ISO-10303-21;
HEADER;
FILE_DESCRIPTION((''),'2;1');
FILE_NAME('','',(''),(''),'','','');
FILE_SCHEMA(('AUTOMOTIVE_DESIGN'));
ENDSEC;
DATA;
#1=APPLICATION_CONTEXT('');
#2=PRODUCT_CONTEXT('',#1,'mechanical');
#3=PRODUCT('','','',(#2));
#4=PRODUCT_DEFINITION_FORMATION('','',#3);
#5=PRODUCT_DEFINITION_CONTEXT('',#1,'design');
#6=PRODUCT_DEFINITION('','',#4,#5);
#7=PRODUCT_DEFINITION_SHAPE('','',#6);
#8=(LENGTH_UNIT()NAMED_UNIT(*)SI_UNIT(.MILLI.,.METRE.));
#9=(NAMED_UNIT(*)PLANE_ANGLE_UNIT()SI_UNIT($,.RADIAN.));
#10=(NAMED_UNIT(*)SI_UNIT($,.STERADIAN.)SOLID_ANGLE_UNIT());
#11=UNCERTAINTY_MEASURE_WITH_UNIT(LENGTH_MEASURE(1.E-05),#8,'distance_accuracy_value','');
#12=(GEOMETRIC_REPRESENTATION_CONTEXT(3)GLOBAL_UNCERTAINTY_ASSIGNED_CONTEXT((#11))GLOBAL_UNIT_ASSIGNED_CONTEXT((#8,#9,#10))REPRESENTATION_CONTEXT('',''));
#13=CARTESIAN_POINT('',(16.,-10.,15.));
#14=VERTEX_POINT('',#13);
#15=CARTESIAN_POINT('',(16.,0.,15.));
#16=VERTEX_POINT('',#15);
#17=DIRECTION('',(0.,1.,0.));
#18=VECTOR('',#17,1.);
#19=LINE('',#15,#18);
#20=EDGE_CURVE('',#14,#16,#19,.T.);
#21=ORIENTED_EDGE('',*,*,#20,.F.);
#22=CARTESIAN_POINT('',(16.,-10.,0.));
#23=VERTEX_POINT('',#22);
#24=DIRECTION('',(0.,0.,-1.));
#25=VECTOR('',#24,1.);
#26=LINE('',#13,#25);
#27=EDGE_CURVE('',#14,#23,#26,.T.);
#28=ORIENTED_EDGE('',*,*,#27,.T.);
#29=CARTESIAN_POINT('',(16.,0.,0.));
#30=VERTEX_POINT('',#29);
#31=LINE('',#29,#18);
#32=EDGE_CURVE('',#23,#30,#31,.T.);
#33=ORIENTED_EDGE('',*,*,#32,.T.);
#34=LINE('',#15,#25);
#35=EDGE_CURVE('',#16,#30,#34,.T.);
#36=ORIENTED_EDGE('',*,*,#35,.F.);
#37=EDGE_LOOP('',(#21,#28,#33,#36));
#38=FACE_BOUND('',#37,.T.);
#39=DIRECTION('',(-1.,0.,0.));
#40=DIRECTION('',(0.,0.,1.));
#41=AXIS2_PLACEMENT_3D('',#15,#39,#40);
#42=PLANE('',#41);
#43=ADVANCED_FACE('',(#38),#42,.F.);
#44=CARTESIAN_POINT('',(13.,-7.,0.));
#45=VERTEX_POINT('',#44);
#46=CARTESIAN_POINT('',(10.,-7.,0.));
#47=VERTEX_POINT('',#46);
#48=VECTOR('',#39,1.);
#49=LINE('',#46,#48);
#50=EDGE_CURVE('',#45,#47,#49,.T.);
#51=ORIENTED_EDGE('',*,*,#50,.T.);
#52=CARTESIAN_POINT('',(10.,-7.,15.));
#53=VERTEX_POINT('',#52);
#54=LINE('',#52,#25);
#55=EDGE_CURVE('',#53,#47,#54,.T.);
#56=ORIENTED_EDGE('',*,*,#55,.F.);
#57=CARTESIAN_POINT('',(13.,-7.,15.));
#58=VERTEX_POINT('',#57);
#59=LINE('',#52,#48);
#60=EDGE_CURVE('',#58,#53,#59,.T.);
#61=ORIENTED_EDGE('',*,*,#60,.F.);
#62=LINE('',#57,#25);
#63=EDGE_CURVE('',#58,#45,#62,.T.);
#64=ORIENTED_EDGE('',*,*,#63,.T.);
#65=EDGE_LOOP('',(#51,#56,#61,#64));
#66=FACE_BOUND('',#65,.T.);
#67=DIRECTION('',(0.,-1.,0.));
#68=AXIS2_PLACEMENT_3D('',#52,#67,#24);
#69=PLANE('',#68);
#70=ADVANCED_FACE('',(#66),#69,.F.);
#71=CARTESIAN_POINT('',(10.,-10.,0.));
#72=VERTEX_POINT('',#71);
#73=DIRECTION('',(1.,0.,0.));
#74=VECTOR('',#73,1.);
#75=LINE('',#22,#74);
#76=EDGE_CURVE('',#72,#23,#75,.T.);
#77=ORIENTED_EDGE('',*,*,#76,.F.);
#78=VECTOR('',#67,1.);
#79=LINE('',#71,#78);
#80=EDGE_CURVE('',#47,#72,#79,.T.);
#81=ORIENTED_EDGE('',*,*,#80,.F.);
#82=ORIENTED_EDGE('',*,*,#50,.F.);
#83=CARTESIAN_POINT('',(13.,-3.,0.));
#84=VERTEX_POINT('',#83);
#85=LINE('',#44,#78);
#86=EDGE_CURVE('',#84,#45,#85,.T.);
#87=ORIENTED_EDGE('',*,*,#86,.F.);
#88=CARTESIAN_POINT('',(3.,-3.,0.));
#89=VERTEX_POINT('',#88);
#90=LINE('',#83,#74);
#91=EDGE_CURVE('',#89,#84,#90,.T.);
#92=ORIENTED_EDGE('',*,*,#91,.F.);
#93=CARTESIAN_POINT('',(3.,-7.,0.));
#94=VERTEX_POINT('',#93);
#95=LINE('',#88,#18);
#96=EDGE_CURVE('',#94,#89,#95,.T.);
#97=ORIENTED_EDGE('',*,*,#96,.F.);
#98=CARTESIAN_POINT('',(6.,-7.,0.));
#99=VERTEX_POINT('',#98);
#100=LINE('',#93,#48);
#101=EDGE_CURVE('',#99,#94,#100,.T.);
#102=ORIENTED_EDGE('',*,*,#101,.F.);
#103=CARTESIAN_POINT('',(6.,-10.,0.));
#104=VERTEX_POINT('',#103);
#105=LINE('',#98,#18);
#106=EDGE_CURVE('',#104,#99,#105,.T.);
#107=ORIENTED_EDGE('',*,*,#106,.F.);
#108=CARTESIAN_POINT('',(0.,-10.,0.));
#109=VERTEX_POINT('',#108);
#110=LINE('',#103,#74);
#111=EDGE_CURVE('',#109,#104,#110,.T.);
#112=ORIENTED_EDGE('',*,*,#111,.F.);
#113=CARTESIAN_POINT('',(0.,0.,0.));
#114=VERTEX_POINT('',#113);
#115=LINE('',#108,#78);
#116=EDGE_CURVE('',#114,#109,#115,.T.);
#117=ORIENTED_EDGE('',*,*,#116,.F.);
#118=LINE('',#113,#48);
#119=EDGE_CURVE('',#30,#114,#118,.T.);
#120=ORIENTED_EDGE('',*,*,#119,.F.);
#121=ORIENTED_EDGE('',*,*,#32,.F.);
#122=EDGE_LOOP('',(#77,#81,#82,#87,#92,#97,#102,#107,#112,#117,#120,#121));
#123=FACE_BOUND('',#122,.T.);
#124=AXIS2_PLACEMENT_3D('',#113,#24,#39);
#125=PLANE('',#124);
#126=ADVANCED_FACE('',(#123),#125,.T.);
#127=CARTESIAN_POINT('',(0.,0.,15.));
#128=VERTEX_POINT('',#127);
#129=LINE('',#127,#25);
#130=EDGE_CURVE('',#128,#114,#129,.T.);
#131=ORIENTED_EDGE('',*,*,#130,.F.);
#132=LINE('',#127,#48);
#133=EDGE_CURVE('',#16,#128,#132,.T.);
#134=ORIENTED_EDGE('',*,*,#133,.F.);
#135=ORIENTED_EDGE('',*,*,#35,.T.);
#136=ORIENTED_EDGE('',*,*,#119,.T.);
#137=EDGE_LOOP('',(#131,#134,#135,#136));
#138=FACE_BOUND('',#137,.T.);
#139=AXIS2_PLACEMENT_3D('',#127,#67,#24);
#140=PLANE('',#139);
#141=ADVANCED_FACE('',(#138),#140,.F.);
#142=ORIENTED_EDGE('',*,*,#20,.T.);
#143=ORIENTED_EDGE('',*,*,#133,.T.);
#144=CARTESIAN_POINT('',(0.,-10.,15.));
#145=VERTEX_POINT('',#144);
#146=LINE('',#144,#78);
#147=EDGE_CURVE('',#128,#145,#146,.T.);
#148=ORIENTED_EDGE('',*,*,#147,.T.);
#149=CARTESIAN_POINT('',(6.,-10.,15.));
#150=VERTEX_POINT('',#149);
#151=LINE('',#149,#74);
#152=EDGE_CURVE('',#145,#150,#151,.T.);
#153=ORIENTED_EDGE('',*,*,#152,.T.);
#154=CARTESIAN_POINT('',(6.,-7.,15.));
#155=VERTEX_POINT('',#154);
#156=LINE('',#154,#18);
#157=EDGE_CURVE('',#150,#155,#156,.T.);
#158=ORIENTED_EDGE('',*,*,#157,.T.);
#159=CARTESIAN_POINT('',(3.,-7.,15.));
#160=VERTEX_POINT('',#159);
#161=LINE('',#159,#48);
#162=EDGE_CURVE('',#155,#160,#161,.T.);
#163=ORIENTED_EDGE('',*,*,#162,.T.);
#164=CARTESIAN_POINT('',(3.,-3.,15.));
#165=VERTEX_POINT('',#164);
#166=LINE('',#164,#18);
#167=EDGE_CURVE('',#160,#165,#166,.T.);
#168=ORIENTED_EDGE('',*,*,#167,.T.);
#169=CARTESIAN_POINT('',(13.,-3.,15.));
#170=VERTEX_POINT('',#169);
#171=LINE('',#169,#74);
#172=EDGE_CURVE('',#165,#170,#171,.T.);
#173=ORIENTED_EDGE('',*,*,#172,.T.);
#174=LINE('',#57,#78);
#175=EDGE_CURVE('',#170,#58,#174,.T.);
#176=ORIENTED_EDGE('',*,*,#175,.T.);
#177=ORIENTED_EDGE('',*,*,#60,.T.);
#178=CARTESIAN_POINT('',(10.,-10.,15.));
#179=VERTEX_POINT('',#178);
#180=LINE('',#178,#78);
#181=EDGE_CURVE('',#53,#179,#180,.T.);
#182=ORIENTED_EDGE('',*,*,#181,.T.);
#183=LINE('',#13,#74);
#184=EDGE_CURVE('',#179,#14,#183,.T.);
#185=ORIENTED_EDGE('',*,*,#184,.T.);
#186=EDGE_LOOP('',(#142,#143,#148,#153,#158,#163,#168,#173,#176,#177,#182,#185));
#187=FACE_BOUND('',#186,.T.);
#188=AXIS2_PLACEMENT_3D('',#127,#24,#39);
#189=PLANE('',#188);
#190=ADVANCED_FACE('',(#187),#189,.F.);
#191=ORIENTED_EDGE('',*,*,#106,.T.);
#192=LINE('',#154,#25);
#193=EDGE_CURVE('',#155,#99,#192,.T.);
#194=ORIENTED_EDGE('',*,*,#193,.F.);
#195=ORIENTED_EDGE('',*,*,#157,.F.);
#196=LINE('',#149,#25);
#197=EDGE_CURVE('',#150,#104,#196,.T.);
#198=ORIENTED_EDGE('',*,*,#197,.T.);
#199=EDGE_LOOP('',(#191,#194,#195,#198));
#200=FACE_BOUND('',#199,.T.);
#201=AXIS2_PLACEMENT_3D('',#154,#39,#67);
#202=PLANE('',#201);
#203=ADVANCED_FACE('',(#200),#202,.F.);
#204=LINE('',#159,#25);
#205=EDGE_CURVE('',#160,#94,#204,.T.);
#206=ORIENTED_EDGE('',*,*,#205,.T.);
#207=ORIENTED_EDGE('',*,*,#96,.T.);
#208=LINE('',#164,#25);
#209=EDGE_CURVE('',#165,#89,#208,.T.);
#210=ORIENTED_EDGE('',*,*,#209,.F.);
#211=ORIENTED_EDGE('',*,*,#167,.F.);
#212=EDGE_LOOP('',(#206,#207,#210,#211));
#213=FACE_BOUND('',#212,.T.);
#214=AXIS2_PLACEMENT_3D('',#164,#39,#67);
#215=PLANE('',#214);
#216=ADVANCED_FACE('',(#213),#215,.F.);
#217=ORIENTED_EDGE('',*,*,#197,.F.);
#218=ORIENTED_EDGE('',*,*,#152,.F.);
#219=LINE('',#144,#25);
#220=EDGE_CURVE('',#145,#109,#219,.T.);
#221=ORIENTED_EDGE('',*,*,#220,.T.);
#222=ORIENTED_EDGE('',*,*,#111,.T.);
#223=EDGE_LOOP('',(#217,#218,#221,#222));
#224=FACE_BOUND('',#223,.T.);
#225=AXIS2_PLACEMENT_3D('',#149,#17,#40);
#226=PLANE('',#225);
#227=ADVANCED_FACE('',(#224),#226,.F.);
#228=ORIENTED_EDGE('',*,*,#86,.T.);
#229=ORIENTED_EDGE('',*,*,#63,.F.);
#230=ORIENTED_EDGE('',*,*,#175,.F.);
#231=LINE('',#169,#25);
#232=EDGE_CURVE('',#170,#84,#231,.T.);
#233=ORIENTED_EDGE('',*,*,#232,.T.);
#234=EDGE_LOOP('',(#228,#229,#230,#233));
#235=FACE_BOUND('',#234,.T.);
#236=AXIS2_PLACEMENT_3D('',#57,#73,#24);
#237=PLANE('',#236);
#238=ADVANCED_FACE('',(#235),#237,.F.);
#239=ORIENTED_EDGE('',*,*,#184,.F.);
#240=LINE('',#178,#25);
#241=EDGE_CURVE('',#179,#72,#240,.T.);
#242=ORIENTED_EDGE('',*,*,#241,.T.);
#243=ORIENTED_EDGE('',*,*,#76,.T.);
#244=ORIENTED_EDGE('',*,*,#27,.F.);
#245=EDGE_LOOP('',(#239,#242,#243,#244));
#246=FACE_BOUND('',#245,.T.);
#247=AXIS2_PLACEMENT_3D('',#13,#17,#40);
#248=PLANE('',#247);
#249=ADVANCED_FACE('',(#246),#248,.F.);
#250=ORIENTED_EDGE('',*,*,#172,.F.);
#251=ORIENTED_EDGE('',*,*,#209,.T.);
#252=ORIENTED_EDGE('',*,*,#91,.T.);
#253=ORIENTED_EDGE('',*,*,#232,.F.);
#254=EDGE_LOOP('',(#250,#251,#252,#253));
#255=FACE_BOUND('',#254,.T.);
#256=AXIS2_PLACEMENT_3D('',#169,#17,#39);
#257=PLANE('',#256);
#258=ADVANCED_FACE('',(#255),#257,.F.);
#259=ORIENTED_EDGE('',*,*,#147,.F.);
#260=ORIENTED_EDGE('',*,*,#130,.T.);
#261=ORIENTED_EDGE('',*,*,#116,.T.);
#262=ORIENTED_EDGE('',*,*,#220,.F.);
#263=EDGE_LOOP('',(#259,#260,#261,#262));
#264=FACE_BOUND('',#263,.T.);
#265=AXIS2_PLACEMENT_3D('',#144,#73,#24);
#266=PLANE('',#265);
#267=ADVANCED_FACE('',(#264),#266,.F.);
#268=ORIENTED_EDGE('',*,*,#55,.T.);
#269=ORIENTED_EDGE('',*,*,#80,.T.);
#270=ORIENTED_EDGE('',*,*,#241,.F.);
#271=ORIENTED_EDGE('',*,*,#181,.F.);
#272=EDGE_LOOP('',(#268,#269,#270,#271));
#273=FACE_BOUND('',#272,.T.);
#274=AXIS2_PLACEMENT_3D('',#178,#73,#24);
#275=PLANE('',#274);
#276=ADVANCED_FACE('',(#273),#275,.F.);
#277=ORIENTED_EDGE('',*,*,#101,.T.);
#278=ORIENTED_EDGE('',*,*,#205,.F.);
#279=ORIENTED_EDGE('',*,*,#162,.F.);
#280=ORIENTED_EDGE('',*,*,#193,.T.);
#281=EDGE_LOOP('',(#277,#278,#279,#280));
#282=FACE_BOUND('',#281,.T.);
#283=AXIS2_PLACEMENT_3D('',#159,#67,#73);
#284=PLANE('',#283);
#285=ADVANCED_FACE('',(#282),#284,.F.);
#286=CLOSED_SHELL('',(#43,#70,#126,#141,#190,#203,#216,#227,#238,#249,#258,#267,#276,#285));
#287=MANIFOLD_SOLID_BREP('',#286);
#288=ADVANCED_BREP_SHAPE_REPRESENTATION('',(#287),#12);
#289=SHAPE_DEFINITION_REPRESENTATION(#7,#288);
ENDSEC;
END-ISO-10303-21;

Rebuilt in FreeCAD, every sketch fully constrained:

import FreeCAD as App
import Part
import Sketcher
from FreeCAD import Vector


def add_polygon(sketch, points):
    """Adds a closed chain of lines whose ends are joined by coincident constraints."""
    first, n = sketch.GeometryCount, len(points)
    for a, b in zip(points, points[1:] + points[:1]):
        sketch.addGeometry(Part.LineSegment(App.Vector(*a, 0), App.Vector(*b, 0)), False)
    for i in range(n):
        sketch.addConstraint(Sketcher.Constraint("Coincident", first + i, 2, first + (i + 1) % n, 1))

doc = App.newDocument("Part")
params = doc.addObject("Spreadsheet::Sheet", "Params")
for row, (alias, value) in enumerate([
    ("sketch1_width", "16 mm"),
    ("sketch1_width2", "6 mm"),
    ("sketch1_width3", "3 mm"),
    ("sketch1_height", "4 mm"),
    ("pad1_length", "15 mm"),
], start=1):
    params.set(f"A{row}", alias)
    params.set(f"B{row}", "=" + value)
    params.setAlias(f"B{row}", alias)

body = doc.addObject("PartDesign::Body", "Body")

# Sketch on XY plane
sketch1 = body.newObject("Sketcher::SketchObject", "Sketch")
sketch1.AttachmentSupport = (doc.getObject("XY_Plane"), [""])
sketch1.MapMode = "FlatFace"
add_polygon(sketch1, [(16, 0), (0, 0), (0, -10), (6, -10), (6, -7), (3, -7), (3, -3), (13, -3), (13, -7), (10, -7), (10, -10), (16, -10)])  # lines 0-11
sketch1.addConstraint(Sketcher.Constraint("Horizontal", 0))
sketch1.addConstraint(Sketcher.Constraint("Vertical", 1))
sketch1.addConstraint(Sketcher.Constraint("Horizontal", 2))
sketch1.addConstraint(Sketcher.Constraint("Vertical", 3))
sketch1.addConstraint(Sketcher.Constraint("Horizontal", 4))
sketch1.addConstraint(Sketcher.Constraint("Vertical", 5))
sketch1.addConstraint(Sketcher.Constraint("Horizontal", 6))
sketch1.addConstraint(Sketcher.Constraint("Vertical", 7))
sketch1.addConstraint(Sketcher.Constraint("Horizontal", 8))
sketch1.addConstraint(Sketcher.Constraint("Vertical", 9))
sketch1.addConstraint(Sketcher.Constraint("Horizontal", 10))
sketch1.addConstraint(Sketcher.Constraint("Vertical", 11))
sketch1.addConstraint(Sketcher.Constraint("Coincident", 0, 2, -1, 1))
sketch1.addConstraint(Sketcher.Constraint("Horizontal", 4, 2, 7, 2))
sketch1.addConstraint(Sketcher.Constraint("Horizontal", 2, 2, 9, 2))
sketch1.addConstraint(Sketcher.Constraint("Equal", 4, 8))
sketch1.addConstraint(Sketcher.Constraint("Equal", 2, 10))
sketch1.addConstraint(Sketcher.Constraint("Equal", 6, 1))
sketch1.addConstraint(Sketcher.Constraint("Equal", 8, 3))
sketch1.addConstraint(Sketcher.Constraint("DistanceX", 0, 2, 0, 1, 16.0))
sketch1.addConstraint(Sketcher.Constraint("DistanceX", 2, 1, 2, 2, 6.0))
sketch1.addConstraint(Sketcher.Constraint("DistanceX", 4, 2, 4, 1, 3.0))
sketch1.addConstraint(Sketcher.Constraint("DistanceY", 5, 1, 5, 2, 4.0))
sketch1.setExpression("Constraints[31]", "Params.sketch1_width")
sketch1.setExpression("Constraints[32]", "Params.sketch1_width2")
sketch1.setExpression("Constraints[33]", "Params.sketch1_width3")
sketch1.setExpression("Constraints[34]", "Params.sketch1_height")
pad1 = body.newObject("PartDesign::Pad", "Pad")
pad1.Profile = sketch1
pad1.setExpression("Length", "Params.pad1_length")

doc.recompute()
